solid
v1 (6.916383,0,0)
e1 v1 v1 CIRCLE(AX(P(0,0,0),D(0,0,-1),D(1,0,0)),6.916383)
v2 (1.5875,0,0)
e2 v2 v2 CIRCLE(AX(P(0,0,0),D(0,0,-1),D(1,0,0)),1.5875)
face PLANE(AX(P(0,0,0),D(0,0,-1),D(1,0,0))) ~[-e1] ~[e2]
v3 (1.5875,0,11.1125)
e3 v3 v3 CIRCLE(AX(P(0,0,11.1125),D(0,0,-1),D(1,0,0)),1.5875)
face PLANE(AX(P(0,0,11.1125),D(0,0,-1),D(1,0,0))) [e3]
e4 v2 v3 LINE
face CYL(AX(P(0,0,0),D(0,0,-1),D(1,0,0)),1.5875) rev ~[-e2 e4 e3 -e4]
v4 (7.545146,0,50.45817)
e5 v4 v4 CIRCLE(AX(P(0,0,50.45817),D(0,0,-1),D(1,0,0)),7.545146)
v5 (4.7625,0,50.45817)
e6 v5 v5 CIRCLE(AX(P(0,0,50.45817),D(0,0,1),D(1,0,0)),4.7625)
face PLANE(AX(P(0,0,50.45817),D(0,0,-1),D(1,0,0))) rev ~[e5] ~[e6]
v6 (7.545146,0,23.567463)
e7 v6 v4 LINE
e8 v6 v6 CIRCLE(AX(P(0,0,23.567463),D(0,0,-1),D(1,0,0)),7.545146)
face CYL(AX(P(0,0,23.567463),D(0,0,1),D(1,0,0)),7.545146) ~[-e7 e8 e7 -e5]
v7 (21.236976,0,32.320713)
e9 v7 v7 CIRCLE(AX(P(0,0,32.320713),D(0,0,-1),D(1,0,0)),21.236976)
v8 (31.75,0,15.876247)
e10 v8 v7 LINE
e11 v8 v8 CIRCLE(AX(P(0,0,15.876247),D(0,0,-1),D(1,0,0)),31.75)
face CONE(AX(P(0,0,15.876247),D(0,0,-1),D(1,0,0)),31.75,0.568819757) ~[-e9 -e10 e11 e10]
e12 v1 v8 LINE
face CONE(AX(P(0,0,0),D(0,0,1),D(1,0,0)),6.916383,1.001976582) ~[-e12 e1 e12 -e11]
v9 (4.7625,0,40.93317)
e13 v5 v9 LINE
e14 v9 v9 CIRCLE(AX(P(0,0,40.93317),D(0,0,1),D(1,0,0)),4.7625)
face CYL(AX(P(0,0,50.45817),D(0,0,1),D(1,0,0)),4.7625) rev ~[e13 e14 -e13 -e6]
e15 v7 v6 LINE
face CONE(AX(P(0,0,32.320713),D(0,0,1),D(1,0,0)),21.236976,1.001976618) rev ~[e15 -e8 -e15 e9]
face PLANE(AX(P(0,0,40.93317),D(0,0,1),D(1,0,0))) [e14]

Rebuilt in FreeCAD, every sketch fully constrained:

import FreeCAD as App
import Part
import Sketcher
from FreeCAD import Vector
Q = App.Units.Quantity

doc = App.newDocument("Part")
body = doc.addObject("PartDesign::Body", "Body")

sketch1 = body.newObject("Sketcher::SketchObject", "Sketch")
sketch1.AttachmentSupport = (doc.getObject("XZ_Plane"), [""])
sketch1.MapMode = "FlatFace"
sketch1.addGeometry(Part.LineSegment(Vector(0, 50, 0), Vector(0, 0, 0)), False)
sketch1.addGeometry(Part.LineSegment(Vector(0, 0, 0), Vector(7, 0, 0)), False)
sketch1.addGeometry(Part.LineSegment(Vector(7, 0, 0), Vector(32, 16, 0)), False)
sketch1.addGeometry(Part.LineSegment(Vector(32, 16, 0), Vector(21, 32, 0)), False)
sketch1.addGeometry(Part.LineSegment(Vector(21, 32, 0), Vector(8, 24, 0)), False)
sketch1.addGeometry(Part.LineSegment(Vector(8, 24, 0), Vector(8, 50, 0)), False)
sketch1.addGeometry(Part.LineSegment(Vector(8, 50, 0), Vector(0, 50, 0)), False)
sketch1.addConstraint(Sketcher.Constraint("Coincident", 0, 2, 1, 1))
sketch1.addConstraint(Sketcher.Constraint("Coincident", 1, 2, 2, 1))
sketch1.addConstraint(Sketcher.Constraint("Coincident", 2, 2, 3, 1))
sketch1.addConstraint(Sketcher.Constraint("Coincident", 3, 2, 4, 1))
sketch1.addConstraint(Sketcher.Constraint("Coincident", 4, 2, 5, 1))
sketch1.addConstraint(Sketcher.Constraint("Coincident", 5, 2, 6, 1))
sketch1.addConstraint(Sketcher.Constraint("Coincident", 6, 2, 0, 1))
sketch1.addConstraint(Sketcher.Constraint("Vertical", 0))
sketch1.addConstraint(Sketcher.Constraint("Horizontal", 1))
sketch1.addConstraint(Sketcher.Constraint("Vertical", 5))
sketch1.addConstraint(Sketcher.Constraint("Horizontal", 6))
sketch1.addConstraint(Sketcher.Constraint("Coincident", 0, 2, -1, 1))
sketch1.addConstraint(Sketcher.Constraint("Perpendicular", 2, 3))
sketch1.addConstraint(Sketcher.Constraint("Perpendicular", 3, 4))
sketch1.addConstraint(Sketcher.Constraint("DistanceX", -1, 1, 2, 2, Q("1.25 in")))
sketch1.addConstraint(Sketcher.Constraint("Distance", 2, 29.474799))
sketch1.addConstraint(Sketcher.Constraint("DistanceY", 0, 2, 0, 1, 50.45817))
sketch1.addConstraint(Sketcher.Constraint("Distance", 3, 19.51779))
sketch1.addConstraint(Sketcher.Constraint("Distance", 4, 16.250711))
sketch1.addConstraint(Sketcher.Constraint("DistanceX", 1, 1, 1, 2, 6.916383))
revolution = body.newObject("PartDesign::Revolution", "Revolution")
revolution.Profile = sketch1
revolution.ReferenceAxis = (sketch1, ["V_Axis"])
revolution.Angle = 360

sketch2 = body.newObject("Sketcher::SketchObject", "Sketch001")
sketch2.AttachmentSupport = (doc.getObject("XY_Plane"), [""])
sketch2.MapMode = "FlatFace"
sketch2.addGeometry(Part.Circle(Vector(0, 0, 0), Vector(0, 0, 1), 1.6), False)
sketch2.addConstraint(Sketcher.Constraint("Coincident", 0, 3, -1, 1))
sketch2.addConstraint(Sketcher.Constraint("Diameter", 0, Q("0.125 in")))
pocket1 = body.newObject("PartDesign::Pocket", "Pocket")
pocket1.Profile = sketch2
pocket1.Length = Q("0.4375 in")
pocket1.Reversed = True

sketch3 = body.newObject("Sketcher::SketchObject", "Sketch002")
sketch3.AttachmentSupport = (doc.getObject("XY_Plane"), [""])
sketch3.MapMode = "FlatFace"
sketch3.AttachmentOffset = App.Placement(Vector(0, 0, 50.45817), App.Rotation())
sketch3.addGeometry(Part.Circle(Vector(0, 0, 0), Vector(0, 0, 1), 4.8), False)
sketch3.addConstraint(Sketcher.Constraint("Coincident", 0, 3, -1, 1))
sketch3.addConstraint(Sketcher.Constraint("Diameter", 0, Q("0.375 in")))
pocket2 = body.newObject("PartDesign::Pocket", "Pocket001")
pocket2.Profile = sketch3
pocket2.Length = Q("0.375 in")

doc.recompute()
